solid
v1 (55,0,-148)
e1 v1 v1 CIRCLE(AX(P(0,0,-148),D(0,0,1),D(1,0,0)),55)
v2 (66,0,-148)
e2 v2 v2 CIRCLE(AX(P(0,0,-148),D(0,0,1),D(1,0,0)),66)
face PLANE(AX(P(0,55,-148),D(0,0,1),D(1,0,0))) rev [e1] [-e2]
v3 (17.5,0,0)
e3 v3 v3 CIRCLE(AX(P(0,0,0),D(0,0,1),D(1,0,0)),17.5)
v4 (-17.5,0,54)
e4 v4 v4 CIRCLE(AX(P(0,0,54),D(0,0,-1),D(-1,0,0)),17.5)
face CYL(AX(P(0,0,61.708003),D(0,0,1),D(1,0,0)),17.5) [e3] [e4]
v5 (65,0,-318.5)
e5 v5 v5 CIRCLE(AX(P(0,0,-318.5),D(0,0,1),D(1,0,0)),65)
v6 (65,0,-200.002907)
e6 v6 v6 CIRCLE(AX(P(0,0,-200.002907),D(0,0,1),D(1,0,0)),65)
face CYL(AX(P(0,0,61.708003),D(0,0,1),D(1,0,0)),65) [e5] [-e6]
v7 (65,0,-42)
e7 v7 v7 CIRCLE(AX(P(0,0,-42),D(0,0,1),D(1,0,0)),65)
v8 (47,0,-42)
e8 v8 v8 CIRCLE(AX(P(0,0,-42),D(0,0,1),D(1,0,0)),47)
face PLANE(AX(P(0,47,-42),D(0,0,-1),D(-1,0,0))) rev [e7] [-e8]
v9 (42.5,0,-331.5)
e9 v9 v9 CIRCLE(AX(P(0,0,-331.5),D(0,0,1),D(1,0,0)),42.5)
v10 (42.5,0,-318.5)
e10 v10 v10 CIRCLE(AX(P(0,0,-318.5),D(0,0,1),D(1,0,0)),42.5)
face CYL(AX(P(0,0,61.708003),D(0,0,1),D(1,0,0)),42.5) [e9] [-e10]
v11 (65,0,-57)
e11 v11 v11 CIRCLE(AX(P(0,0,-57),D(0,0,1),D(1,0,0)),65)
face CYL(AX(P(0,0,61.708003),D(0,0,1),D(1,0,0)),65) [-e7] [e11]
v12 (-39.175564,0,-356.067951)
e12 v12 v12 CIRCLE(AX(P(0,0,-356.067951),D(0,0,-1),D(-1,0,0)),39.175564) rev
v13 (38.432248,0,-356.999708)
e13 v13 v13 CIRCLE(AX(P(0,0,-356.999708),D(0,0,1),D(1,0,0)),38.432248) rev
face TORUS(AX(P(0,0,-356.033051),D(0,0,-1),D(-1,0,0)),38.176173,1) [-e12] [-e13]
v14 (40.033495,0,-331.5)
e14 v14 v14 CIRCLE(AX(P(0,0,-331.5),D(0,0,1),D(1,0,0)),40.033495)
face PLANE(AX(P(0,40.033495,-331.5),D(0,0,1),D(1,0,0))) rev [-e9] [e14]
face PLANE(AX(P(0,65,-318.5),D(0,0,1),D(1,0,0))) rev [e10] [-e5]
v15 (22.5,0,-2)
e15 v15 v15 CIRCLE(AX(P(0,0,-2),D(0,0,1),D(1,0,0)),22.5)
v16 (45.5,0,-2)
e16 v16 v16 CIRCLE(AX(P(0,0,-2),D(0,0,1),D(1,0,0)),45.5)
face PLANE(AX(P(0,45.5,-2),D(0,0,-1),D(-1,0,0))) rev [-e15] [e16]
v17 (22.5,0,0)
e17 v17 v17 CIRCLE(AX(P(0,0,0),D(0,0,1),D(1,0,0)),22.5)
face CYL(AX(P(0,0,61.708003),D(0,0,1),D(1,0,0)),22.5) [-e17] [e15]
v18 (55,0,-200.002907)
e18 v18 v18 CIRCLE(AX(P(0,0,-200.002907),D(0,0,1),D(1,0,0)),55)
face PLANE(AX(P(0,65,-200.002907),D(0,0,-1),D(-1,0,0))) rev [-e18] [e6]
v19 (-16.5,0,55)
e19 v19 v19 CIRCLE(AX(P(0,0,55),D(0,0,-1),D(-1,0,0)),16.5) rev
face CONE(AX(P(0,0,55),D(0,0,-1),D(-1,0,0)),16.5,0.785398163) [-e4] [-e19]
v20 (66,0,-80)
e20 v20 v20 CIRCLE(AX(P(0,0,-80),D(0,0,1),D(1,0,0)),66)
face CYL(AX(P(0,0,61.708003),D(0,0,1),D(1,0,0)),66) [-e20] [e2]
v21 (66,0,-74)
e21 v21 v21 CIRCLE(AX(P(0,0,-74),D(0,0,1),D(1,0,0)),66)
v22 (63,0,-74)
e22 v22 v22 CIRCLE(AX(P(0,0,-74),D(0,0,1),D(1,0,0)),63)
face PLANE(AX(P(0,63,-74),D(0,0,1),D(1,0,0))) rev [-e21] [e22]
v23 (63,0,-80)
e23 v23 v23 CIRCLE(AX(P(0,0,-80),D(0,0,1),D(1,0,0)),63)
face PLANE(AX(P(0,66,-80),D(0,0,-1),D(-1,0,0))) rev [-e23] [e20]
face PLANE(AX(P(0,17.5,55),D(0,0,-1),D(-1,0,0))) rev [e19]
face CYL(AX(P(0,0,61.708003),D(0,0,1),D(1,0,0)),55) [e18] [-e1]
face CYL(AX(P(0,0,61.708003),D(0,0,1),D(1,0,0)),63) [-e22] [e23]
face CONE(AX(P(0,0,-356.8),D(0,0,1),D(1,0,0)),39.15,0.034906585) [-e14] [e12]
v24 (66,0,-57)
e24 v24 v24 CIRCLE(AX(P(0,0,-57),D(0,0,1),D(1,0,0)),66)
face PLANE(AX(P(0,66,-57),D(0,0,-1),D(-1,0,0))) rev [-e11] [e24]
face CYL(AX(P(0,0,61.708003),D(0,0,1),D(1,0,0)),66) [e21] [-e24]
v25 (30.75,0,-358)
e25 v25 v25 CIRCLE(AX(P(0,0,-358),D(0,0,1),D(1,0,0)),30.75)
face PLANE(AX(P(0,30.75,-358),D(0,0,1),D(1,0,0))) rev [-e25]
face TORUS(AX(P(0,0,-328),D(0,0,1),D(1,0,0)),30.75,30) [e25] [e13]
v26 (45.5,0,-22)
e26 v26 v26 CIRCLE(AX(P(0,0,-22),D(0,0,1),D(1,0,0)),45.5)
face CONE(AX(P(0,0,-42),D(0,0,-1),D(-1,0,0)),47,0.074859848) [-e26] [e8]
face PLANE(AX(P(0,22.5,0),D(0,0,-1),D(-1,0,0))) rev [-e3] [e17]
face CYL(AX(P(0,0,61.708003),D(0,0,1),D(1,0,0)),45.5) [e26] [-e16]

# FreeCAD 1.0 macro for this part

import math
import FreeCAD as App
import Part
import Sketcher

V = App.Vector
Q = App.Units.Quantity


def edges_at(feature, points):
    """Names of the edges that pass closest to the given points."""
    edges = feature.Shape.Edges
    near = lambda p: min(range(len(edges)), key=lambda i: edges[i].distToShape(Part.Vertex(*p))[0])
    return sorted({f"Edge{near(p) + 1}" for p in points})

doc = App.newDocument("Part")
params = doc.addObject("Spreadsheet::Sheet", "Params")
for row, (alias, value) in enumerate([
    ("sketch1_radius", "30 mm"),
    ("sketch1_width", "10 mm"),
    ("sketch1_width2", "11 mm"),
    ("sketch1_width3", "3 mm"),
    ("sketch1_width4", "18 mm"),
    ("revolution_angle", "360 deg"),
    ("fillet_radius", "1 mm"),
    ("chamfer_size", "1 mm"),
], start=1):
    params.set(f"A{row}", alias)
    params.set(f"B{row}", "=" + value)
    params.setAlias(f"B{row}", alias)

body = doc.addObject("PartDesign::Body", "Body")

# Sketch on YZ plane
sketch1 = body.newObject("Sketcher::SketchObject", "Sketch")
sketch1.AttachmentSupport = (doc.getObject("YZ_Plane"), [""])
sketch1.MapMode = "FlatFace"
sketch1.addGeometry(Part.LineSegment(V(0, 55, 0), V(0, -358, 0)), False)
sketch1.addGeometry(Part.LineSegment(V(0, -358, 0), V(30.8, -358, 0)), False)
sketch1.addGeometry(Part.ArcOfCircle(Part.Circle(V(30.8, -328, 0), V(0, 0, 1), 30), math.radians(-90), math.radians(-73.74)), False)
sketch1.addGeometry(Part.LineSegment(V(39.1, -356.8, 0), V(40, -331.5, 0)), False)
sketch1.addGeometry(Part.LineSegment(V(40, -331.5, 0), V(42.5, -331.5, 0)), False)
sketch1.addGeometry(Part.LineSegment(V(42.5, -331.5, 0), V(42.5, -318.5, 0)), False)
sketch1.addGeometry(Part.LineSegment(V(42.5, -318.5, 0), V(65, -318.5, 0)), False)
sketch1.addGeometry(Part.LineSegment(V(65, -318.5, 0), V(65, -200, 0)), False)
sketch1.addGeometry(Part.LineSegment(V(65, -200, 0), V(55, -200, 0)), False)
sketch1.addGeometry(Part.LineSegment(V(55, -200, 0), V(55, -148, 0)), False)
sketch1.addGeometry(Part.LineSegment(V(55, -148, 0), V(66, -148, 0)), False)
sketch1.addGeometry(Part.LineSegment(V(66, -148, 0), V(66, -80, 0)), False)
sketch1.addGeometry(Part.LineSegment(V(66, -80, 0), V(63, -80, 0)), False)
sketch1.addGeometry(Part.LineSegment(V(63, -80, 0), V(63, -74, 0)), False)
sketch1.addGeometry(Part.LineSegment(V(63, -74, 0), V(66, -74, 0)), False)
sketch1.addGeometry(Part.LineSegment(V(66, -74, 0), V(66, -57, 0)), False)
sketch1.addGeometry(Part.LineSegment(V(66, -57, 0), V(65, -57, 0)), False)
sketch1.addGeometry(Part.LineSegment(V(65, -57, 0), V(65, -42, 0)), False)
sketch1.addGeometry(Part.LineSegment(V(65, -42, 0), V(47, -42, 0)), False)
sketch1.addGeometry(Part.LineSegment(V(47, -42, 0), V(45.5, -22, 0)), False)
sketch1.addGeometry(Part.LineSegment(V(45.5, -22, 0), V(45.5, -2, 0)), False)
sketch1.addGeometry(Part.LineSegment(V(45.5, -2, 0), V(22.5, -2, 0)), False)
sketch1.addGeometry(Part.LineSegment(V(22.5, -2, 0), V(22.5, 0, 0)), False)
sketch1.addGeometry(Part.LineSegment(V(22.5, 0, 0), V(17.5, 0, 0)), False)
sketch1.addGeometry(Part.LineSegment(V(17.5, 0, 0), V(17.5, 55, 0)), False)
sketch1.addGeometry(Part.LineSegment(V(17.5, 55, 0), V(0, 55, 0)), False)
sketch1.addConstraint(Sketcher.Constraint("Coincident", 0, 2, 1, 1))
sketch1.addConstraint(Sketcher.Constraint("Tangent", 1, 2, 2, 1))
sketch1.addConstraint(Sketcher.Constraint("Coincident", 2, 2, 3, 1))
sketch1.addConstraint(Sketcher.Constraint("Coincident", 3, 2, 4, 1))
sketch1.addConstraint(Sketcher.Constraint("Coincident", 4, 2, 5, 1))
sketch1.addConstraint(Sketcher.Constraint("Coincident", 5, 2, 6, 1))
sketch1.addConstraint(Sketcher.Constraint("Coincident", 6, 2, 7, 1))
sketch1.addConstraint(Sketcher.Constraint("Coincident", 7, 2, 8, 1))
sketch1.addConstraint(Sketcher.Constraint("Coincident", 8, 2, 9, 1))
sketch1.addConstraint(Sketcher.Constraint("Coincident", 9, 2, 10, 1))
sketch1.addConstraint(Sketcher.Constraint("Coincident", 10, 2, 11, 1))
sketch1.addConstraint(Sketcher.Constraint("Coincident", 11, 2, 12, 1))
sketch1.addConstraint(Sketcher.Constraint("Coincident", 12, 2, 13, 1))
sketch1.addConstraint(Sketcher.Constraint("Coincident", 13, 2, 14, 1))
sketch1.addConstraint(Sketcher.Constraint("Coincident", 14, 2, 15, 1))
sketch1.addConstraint(Sketcher.Constraint("Coincident", 15, 2, 16, 1))
sketch1.addConstraint(Sketcher.Constraint("Coincident", 16, 2, 17, 1))
sketch1.addConstraint(Sketcher.Constraint("Coincident", 17, 2, 18, 1))
sketch1.addConstraint(Sketcher.Constraint("Coincident", 18, 2, 19, 1))
sketch1.addConstraint(Sketcher.Constraint("Coincident", 19, 2, 20, 1))
sketch1.addConstraint(Sketcher.Constraint("Coincident", 20, 2, 21, 1))
sketch1.addConstraint(Sketcher.Constraint("Coincident", 21, 2, 22, 1))
sketch1.addConstraint(Sketcher.Constraint("Coincident", 22, 2, 23, 1))
sketch1.addConstraint(Sketcher.Constraint("Coincident", 23, 2, 24, 1))
sketch1.addConstraint(Sketcher.Constraint("Coincident", 24, 2, 25, 1))
sketch1.addConstraint(Sketcher.Constraint("Coincident", 25, 2, 0, 1))
sketch1.addConstraint(Sketcher.Constraint("Vertical", 0))
sketch1.addConstraint(Sketcher.Constraint("Horizontal", 1))
sketch1.addConstraint(Sketcher.Constraint("Horizontal", 4))
sketch1.addConstraint(Sketcher.Constraint("Vertical", 5))
sketch1.addConstraint(Sketcher.Constraint("Horizontal", 6))
sketch1.addConstraint(Sketcher.Constraint("Vertical", 7))
sketch1.addConstraint(Sketcher.Constraint("Horizontal", 8))
sketch1.addConstraint(Sketcher.Constraint("Vertical", 9))
sketch1.addConstraint(Sketcher.Constraint("Horizontal", 10))
sketch1.addConstraint(Sketcher.Constraint("Vertical", 11))
sketch1.addConstraint(Sketcher.Constraint("Horizontal", 12))
sketch1.addConstraint(Sketcher.Constraint("Vertical", 13))
sketch1.addConstraint(Sketcher.Constraint("Horizontal", 14))
sketch1.addConstraint(Sketcher.Constraint("Vertical", 15))
sketch1.addConstraint(Sketcher.Constraint("Horizontal", 16))
sketch1.addConstraint(Sketcher.Constraint("Vertical", 17))
sketch1.addConstraint(Sketcher.Constraint("Horizontal", 18))
sketch1.addConstraint(Sketcher.Constraint("Vertical", 20))
sketch1.addConstraint(Sketcher.Constraint("Horizontal", 21))
sketch1.addConstraint(Sketcher.Constraint("Vertical", 22))
sketch1.addConstraint(Sketcher.Constraint("Horizontal", 23))
sketch1.addConstraint(Sketcher.Constraint("Vertical", 24))
sketch1.addConstraint(Sketcher.Constraint("Horizontal", 25))
sketch1.addConstraint(Sketcher.Constraint("PointOnObject", 0, 2, -2))
sketch1.addConstraint(Sketcher.Constraint("PointOnObject", 22, 2, -1))
sketch1.addConstraint(Sketcher.Constraint("Vertical", 11, 2, 14, 2))
sketch1.addConstraint(Sketcher.Constraint("Vertical", 7, 2, 16, 2))
sketch1.addConstraint(Sketcher.Constraint("Radius", 2, Q("30 mm")))
sketch1.addConstraint(Sketcher.Constraint("DistanceX", 8, 2, 8, 1, Q("10 mm")))
sketch1.addConstraint(Sketcher.Constraint("DistanceX", 10, 1, 10, 2, Q("11 mm")))
sketch1.addConstraint(Sketcher.Constraint("DistanceX", 12, 2, 12, 1, Q("3 mm")))
sketch1.addConstraint(Sketcher.Constraint("DistanceX", 18, 2, 18, 1, Q("18 mm")))
sketch1.addConstraint(Sketcher.Constraint("DistanceX", 21, 2, 21, 1, Q("23 mm")))
sketch1.addConstraint(Sketcher.Constraint("DistanceX", 23, 2, 23, 1, Q("5 mm")))
sketch1.addConstraint(Sketcher.Constraint("DistanceY", 0, 2, 0, 1, Q("413 mm")))
sketch1.addConstraint(Sketcher.Constraint("DistanceY", 5, 1, 5, 2, Q("13 mm")))
sketch1.addConstraint(Sketcher.Constraint("DistanceY", 11, 1, 11, 2, Q("68 mm")))
sketch1.addConstraint(Sketcher.Constraint("DistanceY", 13, 1, 13, 2, Q("6 mm")))
sketch1.addConstraint(Sketcher.Constraint("DistanceY", 15, 1, 15, 2, Q("17 mm")))
sketch1.addConstraint(Sketcher.Constraint("DistanceY", 17, 1, 17, 2, Q("15 mm")))
sketch1.addConstraint(Sketcher.Constraint("DistanceY", 20, 1, 20, 2, Q("20 mm")))
sketch1.addConstraint(Sketcher.Constraint("DistanceY", 22, 1, 22, 2, Q("2 mm")))
sketch1.addConstraint(Sketcher.Constraint("DistanceY", 24, 1, 24, 2, Q("55 mm")))
sketch1.addConstraint(Sketcher.Constraint("Angle", 3, Q("88 deg")))
sketch1.addConstraint(Sketcher.Constraint("DistanceX", 6, 1, 6, 2, Q("22.5 mm")))
sketch1.addConstraint(Sketcher.Constraint("DistanceX", 25, 2, 25, 1, Q("17.5 mm")))
sketch1.addConstraint(Sketcher.Constraint("DistanceX", -1, 1, 6, 2, Q("65 mm")))
sketch1.addConstraint(Sketcher.Constraint("DistanceY", 9, 2, -1, 1, Q("148 mm")))
sketch1.addConstraint(Sketcher.Constraint("DistanceX", 1, 1, 1, 2, Q("30.75 mm")))
sketch1.addConstraint(Sketcher.Constraint("DistanceY", 2, 2, -1, 1, Q("356.8 mm")))
sketch1.addConstraint(Sketcher.Constraint("DistanceY", 3, 2, -1, 1, Q("331.5 mm")))
sketch1.addConstraint(Sketcher.Constraint("DistanceY", 7, 1, 7, 2, Q("118.497093 mm")))
sketch1.setExpression("Constraints[53]", "Params.sketch1_radius")
sketch1.setExpression("Constraints[54]", "Params.sketch1_width")
sketch1.setExpression("Constraints[55]", "Params.sketch1_width2")
sketch1.setExpression("Constraints[56]", "Params.sketch1_width3")
sketch1.setExpression("Constraints[57]", "Params.sketch1_width4")
revolution = body.newObject("PartDesign::Revolution", "Revolution")
revolution.Profile = sketch1
revolution.ReferenceAxis = (sketch1, ["V_Axis"])
revolution.setExpression("Angle", "Params.revolution_angle")
doc.recompute()

fillet = body.newObject("PartDesign::Fillet", "Fillet")
fillet.Base = (revolution, edges_at(revolution, [(-39.15, 0, -356.8)]))
fillet.setExpression("Radius", "Params.fillet_radius")
doc.recompute()

chamfer = body.newObject("PartDesign::Chamfer", "Chamfer")
chamfer.Base = (fillet, edges_at(fillet, [(-17.5, 0, 55)]))
chamfer.setExpression("Size", "Params.chamfer_size")

doc.recompute()
